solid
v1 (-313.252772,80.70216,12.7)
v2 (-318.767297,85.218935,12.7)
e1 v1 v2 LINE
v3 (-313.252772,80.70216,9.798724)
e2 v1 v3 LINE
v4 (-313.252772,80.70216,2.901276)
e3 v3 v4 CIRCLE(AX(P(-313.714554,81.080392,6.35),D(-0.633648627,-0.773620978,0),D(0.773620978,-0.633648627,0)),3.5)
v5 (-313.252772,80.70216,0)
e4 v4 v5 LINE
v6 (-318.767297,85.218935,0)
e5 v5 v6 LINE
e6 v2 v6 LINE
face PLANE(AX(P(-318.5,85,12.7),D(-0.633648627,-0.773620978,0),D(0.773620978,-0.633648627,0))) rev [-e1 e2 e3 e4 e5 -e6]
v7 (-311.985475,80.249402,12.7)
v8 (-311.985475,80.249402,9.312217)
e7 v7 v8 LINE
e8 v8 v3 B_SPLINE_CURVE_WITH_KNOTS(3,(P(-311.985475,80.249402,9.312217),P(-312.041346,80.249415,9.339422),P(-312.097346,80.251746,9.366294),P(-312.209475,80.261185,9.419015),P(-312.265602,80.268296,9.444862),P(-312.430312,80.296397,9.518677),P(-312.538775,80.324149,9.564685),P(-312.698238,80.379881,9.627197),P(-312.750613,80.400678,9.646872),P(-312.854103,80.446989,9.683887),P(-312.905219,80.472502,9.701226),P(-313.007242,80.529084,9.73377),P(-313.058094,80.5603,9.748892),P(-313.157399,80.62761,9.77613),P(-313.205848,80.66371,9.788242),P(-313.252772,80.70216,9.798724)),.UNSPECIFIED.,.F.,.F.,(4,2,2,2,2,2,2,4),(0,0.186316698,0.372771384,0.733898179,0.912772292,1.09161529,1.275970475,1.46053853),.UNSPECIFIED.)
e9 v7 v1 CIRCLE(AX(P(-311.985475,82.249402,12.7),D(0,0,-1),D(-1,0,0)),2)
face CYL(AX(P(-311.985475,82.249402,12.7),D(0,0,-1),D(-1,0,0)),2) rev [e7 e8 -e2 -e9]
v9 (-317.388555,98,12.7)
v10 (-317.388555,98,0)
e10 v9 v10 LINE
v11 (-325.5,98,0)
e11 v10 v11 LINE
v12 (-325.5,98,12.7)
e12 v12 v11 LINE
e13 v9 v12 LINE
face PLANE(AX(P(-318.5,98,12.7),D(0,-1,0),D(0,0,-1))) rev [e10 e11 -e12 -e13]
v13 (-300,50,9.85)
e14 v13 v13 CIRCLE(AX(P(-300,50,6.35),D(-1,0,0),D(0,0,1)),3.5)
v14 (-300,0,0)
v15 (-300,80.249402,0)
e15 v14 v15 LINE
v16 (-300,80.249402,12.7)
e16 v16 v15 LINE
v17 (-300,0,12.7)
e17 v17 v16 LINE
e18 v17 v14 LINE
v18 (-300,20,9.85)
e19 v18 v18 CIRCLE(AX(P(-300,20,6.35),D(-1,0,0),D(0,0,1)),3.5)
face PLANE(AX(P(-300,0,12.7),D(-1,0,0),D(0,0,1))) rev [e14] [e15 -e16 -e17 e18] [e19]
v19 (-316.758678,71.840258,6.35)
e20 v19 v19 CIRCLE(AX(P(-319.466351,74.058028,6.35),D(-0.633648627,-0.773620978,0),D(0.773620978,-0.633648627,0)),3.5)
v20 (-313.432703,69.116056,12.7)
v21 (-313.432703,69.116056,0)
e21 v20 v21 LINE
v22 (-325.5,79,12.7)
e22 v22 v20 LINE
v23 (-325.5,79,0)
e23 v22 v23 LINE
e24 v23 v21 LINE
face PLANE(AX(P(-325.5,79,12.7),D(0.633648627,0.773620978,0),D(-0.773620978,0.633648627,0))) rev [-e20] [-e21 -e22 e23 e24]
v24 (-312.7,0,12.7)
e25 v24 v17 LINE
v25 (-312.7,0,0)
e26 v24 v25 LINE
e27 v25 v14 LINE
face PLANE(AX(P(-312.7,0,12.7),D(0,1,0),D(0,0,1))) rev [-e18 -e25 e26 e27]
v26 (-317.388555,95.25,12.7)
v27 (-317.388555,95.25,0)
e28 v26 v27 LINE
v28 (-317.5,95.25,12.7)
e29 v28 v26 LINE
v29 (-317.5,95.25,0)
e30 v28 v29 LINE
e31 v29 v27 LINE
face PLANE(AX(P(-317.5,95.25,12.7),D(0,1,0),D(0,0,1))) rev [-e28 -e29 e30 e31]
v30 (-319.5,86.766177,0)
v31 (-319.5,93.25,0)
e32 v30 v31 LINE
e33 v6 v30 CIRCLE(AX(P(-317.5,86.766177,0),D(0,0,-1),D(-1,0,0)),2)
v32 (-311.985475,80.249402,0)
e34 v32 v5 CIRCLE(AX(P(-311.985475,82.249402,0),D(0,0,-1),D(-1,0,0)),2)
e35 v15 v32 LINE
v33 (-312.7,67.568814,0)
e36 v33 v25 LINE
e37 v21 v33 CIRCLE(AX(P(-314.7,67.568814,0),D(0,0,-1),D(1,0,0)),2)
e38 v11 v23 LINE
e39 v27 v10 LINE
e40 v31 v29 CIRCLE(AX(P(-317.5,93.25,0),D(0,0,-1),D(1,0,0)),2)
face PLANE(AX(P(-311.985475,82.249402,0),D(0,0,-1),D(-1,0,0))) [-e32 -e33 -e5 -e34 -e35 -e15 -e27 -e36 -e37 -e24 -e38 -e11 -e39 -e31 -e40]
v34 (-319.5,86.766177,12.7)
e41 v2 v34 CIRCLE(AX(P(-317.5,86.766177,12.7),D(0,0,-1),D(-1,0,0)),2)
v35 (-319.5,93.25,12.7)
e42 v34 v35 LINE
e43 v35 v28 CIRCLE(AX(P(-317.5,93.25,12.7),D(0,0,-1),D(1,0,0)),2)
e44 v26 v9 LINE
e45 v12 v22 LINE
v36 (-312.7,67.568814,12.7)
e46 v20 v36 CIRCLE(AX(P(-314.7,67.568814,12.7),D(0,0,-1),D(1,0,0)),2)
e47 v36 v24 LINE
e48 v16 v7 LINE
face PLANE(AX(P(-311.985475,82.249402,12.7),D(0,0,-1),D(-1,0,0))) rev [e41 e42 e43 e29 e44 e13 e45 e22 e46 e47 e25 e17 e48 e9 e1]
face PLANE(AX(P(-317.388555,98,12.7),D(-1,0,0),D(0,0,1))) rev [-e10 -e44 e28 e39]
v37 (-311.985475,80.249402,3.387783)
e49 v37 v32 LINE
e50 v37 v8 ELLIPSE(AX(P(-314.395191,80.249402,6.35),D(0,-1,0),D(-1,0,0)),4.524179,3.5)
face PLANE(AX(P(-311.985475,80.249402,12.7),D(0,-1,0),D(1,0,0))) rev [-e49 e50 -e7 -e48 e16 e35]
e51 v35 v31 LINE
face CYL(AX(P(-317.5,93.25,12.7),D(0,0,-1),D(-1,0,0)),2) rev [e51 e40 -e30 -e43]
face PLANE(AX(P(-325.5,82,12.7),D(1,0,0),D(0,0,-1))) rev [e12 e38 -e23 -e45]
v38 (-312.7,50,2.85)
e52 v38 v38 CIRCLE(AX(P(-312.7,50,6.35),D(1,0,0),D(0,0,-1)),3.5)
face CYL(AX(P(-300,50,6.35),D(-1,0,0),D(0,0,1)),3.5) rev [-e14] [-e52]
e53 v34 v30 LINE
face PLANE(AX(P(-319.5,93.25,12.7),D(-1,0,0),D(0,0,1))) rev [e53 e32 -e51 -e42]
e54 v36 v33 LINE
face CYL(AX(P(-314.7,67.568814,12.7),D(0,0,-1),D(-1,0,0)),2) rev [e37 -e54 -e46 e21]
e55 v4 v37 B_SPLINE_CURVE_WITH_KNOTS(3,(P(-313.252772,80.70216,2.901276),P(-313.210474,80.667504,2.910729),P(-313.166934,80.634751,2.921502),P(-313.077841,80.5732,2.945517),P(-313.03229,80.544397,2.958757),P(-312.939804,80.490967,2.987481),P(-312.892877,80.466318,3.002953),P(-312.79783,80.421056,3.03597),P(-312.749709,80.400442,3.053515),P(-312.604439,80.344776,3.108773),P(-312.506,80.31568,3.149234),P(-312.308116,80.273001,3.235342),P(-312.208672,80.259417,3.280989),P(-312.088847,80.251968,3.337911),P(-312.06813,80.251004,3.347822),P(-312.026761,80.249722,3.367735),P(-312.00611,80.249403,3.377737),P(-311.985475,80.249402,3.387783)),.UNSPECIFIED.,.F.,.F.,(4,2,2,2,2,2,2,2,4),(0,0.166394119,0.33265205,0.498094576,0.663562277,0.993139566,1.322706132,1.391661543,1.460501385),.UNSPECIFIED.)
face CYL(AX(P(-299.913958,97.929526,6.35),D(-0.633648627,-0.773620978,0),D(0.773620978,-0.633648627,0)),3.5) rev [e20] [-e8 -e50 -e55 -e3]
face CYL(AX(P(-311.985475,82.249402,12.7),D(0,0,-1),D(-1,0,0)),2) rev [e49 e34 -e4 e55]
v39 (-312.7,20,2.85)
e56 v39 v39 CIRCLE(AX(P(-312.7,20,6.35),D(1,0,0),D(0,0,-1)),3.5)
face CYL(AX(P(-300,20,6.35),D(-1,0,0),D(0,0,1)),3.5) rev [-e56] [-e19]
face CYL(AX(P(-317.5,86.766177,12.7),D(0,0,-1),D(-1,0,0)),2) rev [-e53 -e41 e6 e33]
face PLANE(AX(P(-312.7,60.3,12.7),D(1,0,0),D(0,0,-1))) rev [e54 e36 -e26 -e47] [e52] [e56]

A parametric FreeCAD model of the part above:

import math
import FreeCAD as App
import Part
import Sketcher
from FreeCAD import Vector

doc = App.newDocument("Part")
params = doc.addObject("Spreadsheet::Sheet", "Params")
for row, (alias, value) in enumerate([
    ("sketch1_radius", "2 mm"),
    ("sketch1_height", "19 mm"),
    ("sketch1_width", "12.7 mm"),
    ("sketch1_height2", "2.75 mm"),
    ("pad1_length", "12.7 mm"),
    ("sketch2_diameter", "7 mm"),
    ("sketch3_diameter", "7 mm"),
], start=1):
    params.set(f"A{row}", alias)
    params.set(f"B{row}", "=" + value)
    params.setAlias(f"B{row}", alias)

body = doc.addObject("PartDesign::Body", "Body")

sketch1 = doc.addObject("Sketcher::SketchObject", "Sketch")
body.addObject(sketch1)
sketch1.AttachmentSupport = (doc.XY_Plane, [""])
sketch1.MapMode = "FlatFace"
sketch1.addGeometry([
    Part.LineSegment(Vector(-312.7, 0, 0), Vector(-300, 0, 0)),
    Part.LineSegment(Vector(-300, 0, 0), Vector(-300, 80.25, 0)),
    Part.LineSegment(Vector(-300, 80.25, 0), Vector(-311.99, 80.25, 0)),
    Part.ArcOfCircle(Part.Circle(Vector(-311.99, 82.25, 0), Vector(0, 0, 1), 2), math.radians(-129), math.radians(-90)),
    Part.LineSegment(Vector(-313.25, 80.7, 0), Vector(-317.17, 83.91, 0)),
    Part.LineSegment(Vector(-317.17, 83.91, 0), Vector(-318.5, 85, 0)),
    Part.LineSegment(Vector(-318.5, 85, 0), Vector(-318.77, 85.22, 0)),
    Part.ArcOfCircle(Part.Circle(Vector(-317.5, 86.77, 0), Vector(0, 0, 1), 2), math.radians(180), math.radians(231)),
    Part.LineSegment(Vector(-319.5, 86.77, 0), Vector(-319.5, 93.25, 0)),
    Part.ArcOfCircle(Part.Circle(Vector(-317.5, 93.25, 0), Vector(0, 0, 1), 2), math.radians(90), math.radians(180)),
    Part.LineSegment(Vector(-317.5, 95.25, 0), Vector(-317.39, 95.25, 0)),
    Part.LineSegment(Vector(-317.39, 95.25, 0), Vector(-317.39, 98, 0)),
    Part.LineSegment(Vector(-317.39, 98, 0), Vector(-325.5, 98, 0)),
    Part.LineSegment(Vector(-325.5, 98, 0), Vector(-325.5, 79, 0)),
    Part.LineSegment(Vector(-325.5, 79, 0), Vector(-313.43, 69.12, 0)),
    Part.ArcOfCircle(Part.Circle(Vector(-314.7, 67.57, 0), Vector(0, 0, 1), 2), math.radians(0), math.radians(51)),
    Part.LineSegment(Vector(-312.7, 67.57, 0), Vector(-312.7, 0, 0)),
], False)
sketch1.addConstraint([
    Sketcher.Constraint("Coincident", 0, 2, 1, 1),
    Sketcher.Constraint("Coincident", 1, 2, 2, 1),
    Sketcher.Constraint("Tangent", 2, 2, 3, 2),
    Sketcher.Constraint("Tangent", 3, 1, 4, 1),
    Sketcher.Constraint("Coincident", 4, 2, 5, 1),
    Sketcher.Constraint("Coincident", 5, 2, 6, 1),
    Sketcher.Constraint("Tangent", 6, 2, 7, 2),
    Sketcher.Constraint("Tangent", 7, 1, 8, 1),
    Sketcher.Constraint("Tangent", 8, 2, 9, 2),
    Sketcher.Constraint("Tangent", 9, 1, 10, 1),
    Sketcher.Constraint("Coincident", 10, 2, 11, 1),
    Sketcher.Constraint("Coincident", 11, 2, 12, 1),
    Sketcher.Constraint("Coincident", 12, 2, 13, 1),
    Sketcher.Constraint("Coincident", 13, 2, 14, 1),
    Sketcher.Constraint("Tangent", 14, 2, 15, 2),
    Sketcher.Constraint("Tangent", 15, 1, 16, 1),
    Sketcher.Constraint("Coincident", 16, 2, 0, 1),
    Sketcher.Constraint("Horizontal", 0),
    Sketcher.Constraint("Vertical", 1),
    Sketcher.Constraint("Horizontal", 2),
    Sketcher.Constraint("Vertical", 8),
    Sketcher.Constraint("Horizontal", 10),
    Sketcher.Constraint("Vertical", 11),
    Sketcher.Constraint("Horizontal", 12),
    Sketcher.Constraint("Vertical", 13),
    Sketcher.Constraint("Vertical", 16),
    Sketcher.Constraint("Equal", 3, 7),
    Sketcher.Constraint("Equal", 7, 9),
    Sketcher.Constraint("Equal", 9, 15),
    Sketcher.Constraint("PointOnObject", 0, 2, -1),
    Sketcher.Constraint("Parallel", 4, 5),
    Sketcher.Constraint("Parallel", 5, 6),
    Sketcher.Constraint("Parallel", 6, 14),
    Sketcher.Constraint("Radius", 3, 2.0),
    Sketcher.Constraint("DistanceY", 13, 2, 13, 1, 19.0),
    Sketcher.Constraint("DistanceX", 0, 1, 0, 2, 12.7),
    Sketcher.Constraint("DistanceX", 0, 2, -1, 1, 300.0),
    Sketcher.Constraint("DistanceY", -1, 1, 5, 2, 85.0),
    Sketcher.Constraint("DistanceY", -1, 1, 11, 2, 98.0),
    Sketcher.Constraint("DistanceX", 5, 2, 7, 3, 1.0),
    Sketcher.Constraint("DistanceX", 12, 2, 8, 2, 6.0),
    Sketcher.Constraint("DistanceY", 11, 1, 11, 2, 2.75),
    Sketcher.Constraint("DistanceX", 7, 3, -1, 1, 317.5),
    Sketcher.Constraint("DistanceY", 14, 2, 4, 2, 14.794699),
    Sketcher.Constraint("Distance", 4, 5.063681),
    Sketcher.Constraint("Distance", 14, 15.598462),
    Sketcher.Constraint("DistanceX", 10, 1, 10, 2, 0.111445),
])
sketch1.setExpression("Constraints[33]", "Params.sketch1_radius")
sketch1.setExpression("Constraints[34]", "Params.sketch1_height")
sketch1.setExpression("Constraints[35]", "Params.sketch1_width")
sketch1.setExpression("Constraints[41]", "Params.sketch1_height2")
pad1 = doc.addObject("PartDesign::Pad", "Pad")
body.addObject(pad1)
pad1.Profile = sketch1
pad1.setExpression("Length", "Params.pad1_length")

sketch2 = doc.addObject("Sketcher::SketchObject", "Sketch001")
body.addObject(sketch2)
sketch2.AttachmentSupport = (doc.YZ_Plane, [""])
sketch2.MapMode = "FlatFace"
sketch2.AttachmentOffset = App.Placement(Vector(0, 0, -312.7), App.Rotation())
sketch2.addGeometry([
    Part.Circle(Vector(50, 6.3, 0), Vector(0, 0, 1), 3.5),
    Part.Circle(Vector(20, 6.3, 0), Vector(0, 0, 1), 3.5),
], False)
sketch2.addConstraint([
    Sketcher.Constraint("Equal", 0, 1),
    Sketcher.Constraint("Horizontal", 0, 3, 1, 3),
    Sketcher.Constraint("Diameter", 0, 7.0),
    Sketcher.Constraint("DistanceX", -1, 1, 0, 3, 50.0),
    Sketcher.Constraint("DistanceX", -1, 1, 1, 3, 20.0),
    Sketcher.Constraint("DistanceY", -1, 1, 0, 3, 6.35),
])
sketch2.setExpression("Constraints[2]", "Params.sketch2_diameter")
pocket1 = doc.addObject("PartDesign::Pocket", "Pocket")
body.addObject(pocket1)
pocket1.Profile = sketch2
pocket1.Type = "ThroughAll"
pocket1.Midplane = True

sketch3 = doc.addObject("Sketcher::SketchObject", "Sketch002")
body.addObject(sketch3)
sketch3.Placement = App.Placement(Vector(-91.965589, -112.280696, 0), App.Rotation(Vector(0.773620978, -0.633648627, 0), Vector(0, 0, 1), Vector(-0.633648627, -0.773620978, 0), "ZXY"))
sketch3.addGeometry(Part.Circle(Vector(-294.1, 6.4, 0), Vector(0, 0, 1), 3.5), False)
sketch3.addConstraint([
    Sketcher.Constraint("Diameter", 0, 7.0),
    Sketcher.Constraint("DistanceY", -1, 1, 0, 3, 6.35),
    Sketcher.Constraint("DistanceX", 0, 3, -1, 1, 294.072639),
])
sketch3.setExpression("Constraints[0]", "Params.sketch3_diameter")
pocket2 = doc.addObject("PartDesign::Pocket", "Pocket001")
body.addObject(pocket2)
pocket2.Profile = sketch3
pocket2.Type = "ThroughAll"

doc.recompute()
